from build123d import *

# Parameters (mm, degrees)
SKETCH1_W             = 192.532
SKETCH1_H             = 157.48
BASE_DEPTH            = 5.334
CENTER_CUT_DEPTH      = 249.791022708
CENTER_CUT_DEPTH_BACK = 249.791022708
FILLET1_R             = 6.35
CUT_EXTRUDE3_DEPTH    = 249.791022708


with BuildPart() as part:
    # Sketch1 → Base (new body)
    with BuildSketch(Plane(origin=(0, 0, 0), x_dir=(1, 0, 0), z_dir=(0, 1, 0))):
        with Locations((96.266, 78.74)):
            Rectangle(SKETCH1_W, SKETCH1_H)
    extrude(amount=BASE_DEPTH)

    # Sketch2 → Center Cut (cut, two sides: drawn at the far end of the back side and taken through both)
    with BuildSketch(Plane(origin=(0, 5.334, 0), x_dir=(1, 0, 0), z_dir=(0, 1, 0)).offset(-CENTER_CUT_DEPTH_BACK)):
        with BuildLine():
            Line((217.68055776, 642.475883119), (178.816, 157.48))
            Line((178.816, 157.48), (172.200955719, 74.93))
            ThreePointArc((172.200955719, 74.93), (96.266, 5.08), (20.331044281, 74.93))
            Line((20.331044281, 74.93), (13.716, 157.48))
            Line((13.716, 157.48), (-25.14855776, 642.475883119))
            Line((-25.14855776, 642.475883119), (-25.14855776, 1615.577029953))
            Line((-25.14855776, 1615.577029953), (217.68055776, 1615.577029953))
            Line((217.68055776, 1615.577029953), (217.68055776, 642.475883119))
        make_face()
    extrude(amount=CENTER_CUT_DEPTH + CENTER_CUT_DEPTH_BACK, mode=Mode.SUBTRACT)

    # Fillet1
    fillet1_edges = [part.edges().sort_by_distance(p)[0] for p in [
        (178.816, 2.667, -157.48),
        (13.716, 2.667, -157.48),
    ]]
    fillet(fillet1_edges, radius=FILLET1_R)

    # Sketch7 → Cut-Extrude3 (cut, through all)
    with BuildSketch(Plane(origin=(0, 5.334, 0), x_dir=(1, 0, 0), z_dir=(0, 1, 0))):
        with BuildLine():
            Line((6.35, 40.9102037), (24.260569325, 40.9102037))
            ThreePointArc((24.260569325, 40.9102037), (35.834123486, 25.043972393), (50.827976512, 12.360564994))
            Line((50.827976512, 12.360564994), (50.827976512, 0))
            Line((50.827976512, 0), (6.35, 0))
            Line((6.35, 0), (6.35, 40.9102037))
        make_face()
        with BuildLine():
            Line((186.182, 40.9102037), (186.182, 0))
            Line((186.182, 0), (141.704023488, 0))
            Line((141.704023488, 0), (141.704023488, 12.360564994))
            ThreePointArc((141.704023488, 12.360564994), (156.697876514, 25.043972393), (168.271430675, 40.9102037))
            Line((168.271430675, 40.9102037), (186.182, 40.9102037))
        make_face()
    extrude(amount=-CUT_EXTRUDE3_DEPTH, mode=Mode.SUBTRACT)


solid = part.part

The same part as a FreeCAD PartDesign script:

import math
import FreeCAD as App
import Part
import Sketcher

V = App.Vector
Q = App.Units.Quantity


def edges_at(feature, points):
    """Names of the edges that pass closest to the given points."""
    edges = feature.Shape.Edges
    near = lambda p: min(range(len(edges)), key=lambda i: edges[i].distToShape(Part.Vertex(*p))[0])
    return sorted({f"Edge{near(p) + 1}" for p in points})

doc = App.newDocument("Part")
body = doc.addObject("PartDesign::Body", "Body")

# Sketch on XZ plane
sketch1 = body.newObject("Sketcher::SketchObject", "Sketch")
sketch1.AttachmentSupport = (doc.getObject("XZ_Plane"), [""])
sketch1.MapMode = "FlatFace"
sketch1.addGeometry([
    Part.LineSegment(V(0, -157.48, 0), V(0, 0, 0)),
    Part.LineSegment(V(0, 0, 0), V(192.532, 0, 0)),
    Part.LineSegment(V(192.532, 0, 0), V(192.532, -157.48, 0)),
    Part.LineSegment(V(192.532, -157.48, 0), V(0, -157.48, 0)),
], False)
sketch1.addConstraint([
    Sketcher.Constraint("Coincident", 0, 2, 1, 1),
    Sketcher.Constraint("Coincident", 1, 2, 2, 1),
    Sketcher.Constraint("Coincident", 2, 2, 3, 1),
    Sketcher.Constraint("Coincident", 3, 2, 0, 1),
    Sketcher.Constraint("Vertical", 0),
    Sketcher.Constraint("Horizontal", 1),
    Sketcher.Constraint("Vertical", 2),
    Sketcher.Constraint("Horizontal", 3),
    Sketcher.Constraint("Coincident", 0, 2, -1, 1),
    Sketcher.Constraint("DistanceY", 0, 1, 0, 2, Q("6.2 in")),
    Sketcher.Constraint("DistanceX", 1, 1, 1, 2, Q("7.58 in")),
])
pad1 = body.newObject("PartDesign::Pad", "Pad")
pad1.Profile = sketch1
pad1.Length = Q("0.21 in")
pad1.Reversed = True

# Sketch on XZ plane
sketch2 = body.newObject("Sketcher::SketchObject", "Sketch001")
sketch2.AttachmentSupport = (doc.getObject("XZ_Plane"), [""])
sketch2.MapMode = "FlatFace"
sketch2.AttachmentOffset = App.Placement(V(0, 0, -0.21 * 25.4), App.Rotation())
sketch2.addGeometry([
    Part.LineSegment(V(178.816, -157.48, 0), V(217.680558, -642.475883, 0)),  # 0
    Part.LineSegment(V(217.680558, -642.475883, 0), V(217.680558, -1615.57703, 0)),  # 1
    Part.LineSegment(V(217.680558, -1615.57703, 0), V(-25.148558, -1615.57703, 0)),  # 2
    Part.LineSegment(V(-25.148558, -1615.57703, 0), V(-25.148558, -642.475883, 0)),  # 3
    Part.LineSegment(V(-25.148558, -642.475883, 0), V(13.716, -157.48, 0)),  # 4
    Part.LineSegment(V(13.716, -157.48, 0), V(20.331044, -74.93, 0)),  # 5
    Part.ArcOfCircle(Part.Circle(V(96.266, -81.28, 0), V(0, 0, 1), 76.2), math.radians(4.780192), math.radians(175.219808)),  # 6
    Part.LineSegment(V(172.200956, -74.93, 0), V(178.816, -157.48, 0)),  # 7
], False)
sketch2.addConstraint([
    Sketcher.Constraint("Coincident", 0, 2, 1, 1),
    Sketcher.Constraint("Coincident", 1, 2, 2, 1),
    Sketcher.Constraint("Coincident", 2, 2, 3, 1),
    Sketcher.Constraint("Coincident", 3, 2, 4, 1),
    Sketcher.Constraint("Coincident", 4, 2, 5, 1),
    Sketcher.Constraint("Coincident", 5, 2, 6, 2),
    Sketcher.Constraint("Coincident", 6, 1, 7, 1),
    Sketcher.Constraint("Coincident", 7, 2, 0, 1),
    Sketcher.Constraint("Vertical", 1),
    Sketcher.Constraint("Horizontal", 2),
    Sketcher.Constraint("Vertical", 3),
    Sketcher.Constraint("Parallel", 4, 5),
    Sketcher.Constraint("Parallel", 0, 7),
    Sketcher.Constraint("Horizontal", 0, 2, 3, 2),
    Sketcher.Constraint("Horizontal", 5, 2, 6, 1),
    Sketcher.Constraint("Horizontal", 4, 2, 7, 2),
    Sketcher.Constraint("Equal", 0, 4),
    Sketcher.Constraint("Radius", 6, Q("3 in")),
    Sketcher.Constraint("DistanceY", 4, 2, 6, 3, Q("3 in")),
    Sketcher.Constraint("DistanceY", 6, 3, -1, 1, Q("3.2 in")),
    Sketcher.Constraint("DistanceX", 4, 2, 7, 2, Q("6.5 in")),
    Sketcher.Constraint("DistanceX", -1, 1, 6, 3, Q("3.79 in")),
    Sketcher.Constraint("DistanceY", 5, 2, -1, 1, Q("2.95 in")),
    Sketcher.Constraint("DistanceX", 2, 2, 2, 1, Q("242.829116 mm")),
    Sketcher.Constraint("DistanceY", 1, 2, 1, 1, Q("973.101147 mm")),
])
pocket1 = body.newObject("PartDesign::Pocket", "Pocket")
pocket1.Profile = sketch2
pocket1.Type = "ThroughAll"
pocket1.Midplane = True
doc.recompute()

fillet = body.newObject("PartDesign::Fillet", "Fillet")
fillet.Base = (pocket1, edges_at(pocket1, [(178.816, 2.667, -157.48), (13.716, 2.667, -157.48)]))
fillet.Radius = Q("0.25 in")

# Sketch on XZ plane
sketch3 = body.newObject("Sketcher::SketchObject", "Sketch002")
sketch3.AttachmentSupport = (doc.getObject("XZ_Plane"), [""])
sketch3.MapMode = "FlatFace"
sketch3.AttachmentOffset = App.Placement(V(0, 0, -0.21 * 25.4), App.Rotation())
sketch3.addGeometry([
    Part.LineSegment(V(24.260569, -40.910204, 0), V(6.35, -40.910204, 0)),  # 0
    Part.LineSegment(V(6.35, -40.910204, 0), V(6.35, 0, 0)),  # 1
    Part.LineSegment(V(6.35, 0, 0), V(50.827977, 0, 0)),  # 2
    Part.LineSegment(V(50.827977, 0, 0), V(50.827977, -12.360565, 0)),  # 3
    Part.ArcOfCircle(Part.Circle(V(96.266, -81.28, 0), V(0, 0, 1), 82.55), math.radians(123.39654), math.radians(150.72286)),  # 4
    Part.LineSegment(V(186.182, 0, 0), V(186.182, -40.910204, 0)),  # 5
    Part.LineSegment(V(186.182, -40.910204, 0), V(168.271431, -40.910204, 0)),  # 6
    Part.ArcOfCircle(Part.Circle(V(96.266, -81.28, 0), V(0, 0, 1), 82.55), math.radians(29.27714), math.radians(56.60346)),  # 7
    Part.LineSegment(V(141.704023, -12.360565, 0), V(141.704023, 0, 0)),  # 8
    Part.LineSegment(V(141.704023, 0, 0), V(186.182, 0, 0)),  # 9
], False)
sketch3.addConstraint([
    Sketcher.Constraint("Coincident", 0, 2, 1, 1),
    Sketcher.Constraint("Coincident", 1, 2, 2, 1),
    Sketcher.Constraint("Coincident", 2, 2, 3, 1),
    Sketcher.Constraint("Coincident", 3, 2, 4, 1),
    Sketcher.Constraint("Coincident", 4, 2, 0, 1),
    Sketcher.Constraint("Coincident", 5, 2, 6, 1),
    Sketcher.Constraint("Coincident", 6, 2, 7, 1),
    Sketcher.Constraint("Coincident", 7, 2, 8, 1),
    Sketcher.Constraint("Coincident", 8, 2, 9, 1),
    Sketcher.Constraint("Coincident", 9, 2, 5, 1),
    Sketcher.Constraint("Horizontal", 0),
    Sketcher.Constraint("Vertical", 1),
    Sketcher.Constraint("Horizontal", 2),
    Sketcher.Constraint("Vertical", 3),
    Sketcher.Constraint("Vertical", 5),
    Sketcher.Constraint("Horizontal", 6),
    Sketcher.Constraint("Vertical", 8),
    Sketcher.Constraint("Horizontal", 9),
    Sketcher.Constraint("Coincident", 7, 3, 4, 3),
    Sketcher.Constraint("Equal", 4, 7),
    Sketcher.Constraint("PointOnObject", 1, 2, -1),
    Sketcher.Constraint("PointOnObject", 8, 2, -1),
    Sketcher.Constraint("Horizontal", 4, 2, 5, 2),
    Sketcher.Constraint("Horizontal", 3, 2, 7, 2),
    Sketcher.Constraint("Equal", 0, 6),
    Sketcher.Constraint("Radius", 4, Q("3.25 in")),
    Sketcher.Constraint("DistanceY", 4, 3, -1, 1, Q("3.2 in")),
    Sketcher.Constraint("DistanceX", -1, 1, 4, 3, Q("3.79 in")),
    Sketcher.Constraint("DistanceX", -1, 1, 0, 2, Q("0.25 in")),
    Sketcher.Constraint("DistanceX", 0, 2, 0, 1, Q("17.910569 mm")),
    Sketcher.Constraint("DistanceX", 2, 1, 2, 2, Q("44.477977 mm")),
])
pocket2 = body.newObject("PartDesign::Pocket", "Pocket001")
pocket2.Profile = sketch3
pocket2.Type = "ThroughAll"
pocket2.Reversed = True

doc.recompute()
